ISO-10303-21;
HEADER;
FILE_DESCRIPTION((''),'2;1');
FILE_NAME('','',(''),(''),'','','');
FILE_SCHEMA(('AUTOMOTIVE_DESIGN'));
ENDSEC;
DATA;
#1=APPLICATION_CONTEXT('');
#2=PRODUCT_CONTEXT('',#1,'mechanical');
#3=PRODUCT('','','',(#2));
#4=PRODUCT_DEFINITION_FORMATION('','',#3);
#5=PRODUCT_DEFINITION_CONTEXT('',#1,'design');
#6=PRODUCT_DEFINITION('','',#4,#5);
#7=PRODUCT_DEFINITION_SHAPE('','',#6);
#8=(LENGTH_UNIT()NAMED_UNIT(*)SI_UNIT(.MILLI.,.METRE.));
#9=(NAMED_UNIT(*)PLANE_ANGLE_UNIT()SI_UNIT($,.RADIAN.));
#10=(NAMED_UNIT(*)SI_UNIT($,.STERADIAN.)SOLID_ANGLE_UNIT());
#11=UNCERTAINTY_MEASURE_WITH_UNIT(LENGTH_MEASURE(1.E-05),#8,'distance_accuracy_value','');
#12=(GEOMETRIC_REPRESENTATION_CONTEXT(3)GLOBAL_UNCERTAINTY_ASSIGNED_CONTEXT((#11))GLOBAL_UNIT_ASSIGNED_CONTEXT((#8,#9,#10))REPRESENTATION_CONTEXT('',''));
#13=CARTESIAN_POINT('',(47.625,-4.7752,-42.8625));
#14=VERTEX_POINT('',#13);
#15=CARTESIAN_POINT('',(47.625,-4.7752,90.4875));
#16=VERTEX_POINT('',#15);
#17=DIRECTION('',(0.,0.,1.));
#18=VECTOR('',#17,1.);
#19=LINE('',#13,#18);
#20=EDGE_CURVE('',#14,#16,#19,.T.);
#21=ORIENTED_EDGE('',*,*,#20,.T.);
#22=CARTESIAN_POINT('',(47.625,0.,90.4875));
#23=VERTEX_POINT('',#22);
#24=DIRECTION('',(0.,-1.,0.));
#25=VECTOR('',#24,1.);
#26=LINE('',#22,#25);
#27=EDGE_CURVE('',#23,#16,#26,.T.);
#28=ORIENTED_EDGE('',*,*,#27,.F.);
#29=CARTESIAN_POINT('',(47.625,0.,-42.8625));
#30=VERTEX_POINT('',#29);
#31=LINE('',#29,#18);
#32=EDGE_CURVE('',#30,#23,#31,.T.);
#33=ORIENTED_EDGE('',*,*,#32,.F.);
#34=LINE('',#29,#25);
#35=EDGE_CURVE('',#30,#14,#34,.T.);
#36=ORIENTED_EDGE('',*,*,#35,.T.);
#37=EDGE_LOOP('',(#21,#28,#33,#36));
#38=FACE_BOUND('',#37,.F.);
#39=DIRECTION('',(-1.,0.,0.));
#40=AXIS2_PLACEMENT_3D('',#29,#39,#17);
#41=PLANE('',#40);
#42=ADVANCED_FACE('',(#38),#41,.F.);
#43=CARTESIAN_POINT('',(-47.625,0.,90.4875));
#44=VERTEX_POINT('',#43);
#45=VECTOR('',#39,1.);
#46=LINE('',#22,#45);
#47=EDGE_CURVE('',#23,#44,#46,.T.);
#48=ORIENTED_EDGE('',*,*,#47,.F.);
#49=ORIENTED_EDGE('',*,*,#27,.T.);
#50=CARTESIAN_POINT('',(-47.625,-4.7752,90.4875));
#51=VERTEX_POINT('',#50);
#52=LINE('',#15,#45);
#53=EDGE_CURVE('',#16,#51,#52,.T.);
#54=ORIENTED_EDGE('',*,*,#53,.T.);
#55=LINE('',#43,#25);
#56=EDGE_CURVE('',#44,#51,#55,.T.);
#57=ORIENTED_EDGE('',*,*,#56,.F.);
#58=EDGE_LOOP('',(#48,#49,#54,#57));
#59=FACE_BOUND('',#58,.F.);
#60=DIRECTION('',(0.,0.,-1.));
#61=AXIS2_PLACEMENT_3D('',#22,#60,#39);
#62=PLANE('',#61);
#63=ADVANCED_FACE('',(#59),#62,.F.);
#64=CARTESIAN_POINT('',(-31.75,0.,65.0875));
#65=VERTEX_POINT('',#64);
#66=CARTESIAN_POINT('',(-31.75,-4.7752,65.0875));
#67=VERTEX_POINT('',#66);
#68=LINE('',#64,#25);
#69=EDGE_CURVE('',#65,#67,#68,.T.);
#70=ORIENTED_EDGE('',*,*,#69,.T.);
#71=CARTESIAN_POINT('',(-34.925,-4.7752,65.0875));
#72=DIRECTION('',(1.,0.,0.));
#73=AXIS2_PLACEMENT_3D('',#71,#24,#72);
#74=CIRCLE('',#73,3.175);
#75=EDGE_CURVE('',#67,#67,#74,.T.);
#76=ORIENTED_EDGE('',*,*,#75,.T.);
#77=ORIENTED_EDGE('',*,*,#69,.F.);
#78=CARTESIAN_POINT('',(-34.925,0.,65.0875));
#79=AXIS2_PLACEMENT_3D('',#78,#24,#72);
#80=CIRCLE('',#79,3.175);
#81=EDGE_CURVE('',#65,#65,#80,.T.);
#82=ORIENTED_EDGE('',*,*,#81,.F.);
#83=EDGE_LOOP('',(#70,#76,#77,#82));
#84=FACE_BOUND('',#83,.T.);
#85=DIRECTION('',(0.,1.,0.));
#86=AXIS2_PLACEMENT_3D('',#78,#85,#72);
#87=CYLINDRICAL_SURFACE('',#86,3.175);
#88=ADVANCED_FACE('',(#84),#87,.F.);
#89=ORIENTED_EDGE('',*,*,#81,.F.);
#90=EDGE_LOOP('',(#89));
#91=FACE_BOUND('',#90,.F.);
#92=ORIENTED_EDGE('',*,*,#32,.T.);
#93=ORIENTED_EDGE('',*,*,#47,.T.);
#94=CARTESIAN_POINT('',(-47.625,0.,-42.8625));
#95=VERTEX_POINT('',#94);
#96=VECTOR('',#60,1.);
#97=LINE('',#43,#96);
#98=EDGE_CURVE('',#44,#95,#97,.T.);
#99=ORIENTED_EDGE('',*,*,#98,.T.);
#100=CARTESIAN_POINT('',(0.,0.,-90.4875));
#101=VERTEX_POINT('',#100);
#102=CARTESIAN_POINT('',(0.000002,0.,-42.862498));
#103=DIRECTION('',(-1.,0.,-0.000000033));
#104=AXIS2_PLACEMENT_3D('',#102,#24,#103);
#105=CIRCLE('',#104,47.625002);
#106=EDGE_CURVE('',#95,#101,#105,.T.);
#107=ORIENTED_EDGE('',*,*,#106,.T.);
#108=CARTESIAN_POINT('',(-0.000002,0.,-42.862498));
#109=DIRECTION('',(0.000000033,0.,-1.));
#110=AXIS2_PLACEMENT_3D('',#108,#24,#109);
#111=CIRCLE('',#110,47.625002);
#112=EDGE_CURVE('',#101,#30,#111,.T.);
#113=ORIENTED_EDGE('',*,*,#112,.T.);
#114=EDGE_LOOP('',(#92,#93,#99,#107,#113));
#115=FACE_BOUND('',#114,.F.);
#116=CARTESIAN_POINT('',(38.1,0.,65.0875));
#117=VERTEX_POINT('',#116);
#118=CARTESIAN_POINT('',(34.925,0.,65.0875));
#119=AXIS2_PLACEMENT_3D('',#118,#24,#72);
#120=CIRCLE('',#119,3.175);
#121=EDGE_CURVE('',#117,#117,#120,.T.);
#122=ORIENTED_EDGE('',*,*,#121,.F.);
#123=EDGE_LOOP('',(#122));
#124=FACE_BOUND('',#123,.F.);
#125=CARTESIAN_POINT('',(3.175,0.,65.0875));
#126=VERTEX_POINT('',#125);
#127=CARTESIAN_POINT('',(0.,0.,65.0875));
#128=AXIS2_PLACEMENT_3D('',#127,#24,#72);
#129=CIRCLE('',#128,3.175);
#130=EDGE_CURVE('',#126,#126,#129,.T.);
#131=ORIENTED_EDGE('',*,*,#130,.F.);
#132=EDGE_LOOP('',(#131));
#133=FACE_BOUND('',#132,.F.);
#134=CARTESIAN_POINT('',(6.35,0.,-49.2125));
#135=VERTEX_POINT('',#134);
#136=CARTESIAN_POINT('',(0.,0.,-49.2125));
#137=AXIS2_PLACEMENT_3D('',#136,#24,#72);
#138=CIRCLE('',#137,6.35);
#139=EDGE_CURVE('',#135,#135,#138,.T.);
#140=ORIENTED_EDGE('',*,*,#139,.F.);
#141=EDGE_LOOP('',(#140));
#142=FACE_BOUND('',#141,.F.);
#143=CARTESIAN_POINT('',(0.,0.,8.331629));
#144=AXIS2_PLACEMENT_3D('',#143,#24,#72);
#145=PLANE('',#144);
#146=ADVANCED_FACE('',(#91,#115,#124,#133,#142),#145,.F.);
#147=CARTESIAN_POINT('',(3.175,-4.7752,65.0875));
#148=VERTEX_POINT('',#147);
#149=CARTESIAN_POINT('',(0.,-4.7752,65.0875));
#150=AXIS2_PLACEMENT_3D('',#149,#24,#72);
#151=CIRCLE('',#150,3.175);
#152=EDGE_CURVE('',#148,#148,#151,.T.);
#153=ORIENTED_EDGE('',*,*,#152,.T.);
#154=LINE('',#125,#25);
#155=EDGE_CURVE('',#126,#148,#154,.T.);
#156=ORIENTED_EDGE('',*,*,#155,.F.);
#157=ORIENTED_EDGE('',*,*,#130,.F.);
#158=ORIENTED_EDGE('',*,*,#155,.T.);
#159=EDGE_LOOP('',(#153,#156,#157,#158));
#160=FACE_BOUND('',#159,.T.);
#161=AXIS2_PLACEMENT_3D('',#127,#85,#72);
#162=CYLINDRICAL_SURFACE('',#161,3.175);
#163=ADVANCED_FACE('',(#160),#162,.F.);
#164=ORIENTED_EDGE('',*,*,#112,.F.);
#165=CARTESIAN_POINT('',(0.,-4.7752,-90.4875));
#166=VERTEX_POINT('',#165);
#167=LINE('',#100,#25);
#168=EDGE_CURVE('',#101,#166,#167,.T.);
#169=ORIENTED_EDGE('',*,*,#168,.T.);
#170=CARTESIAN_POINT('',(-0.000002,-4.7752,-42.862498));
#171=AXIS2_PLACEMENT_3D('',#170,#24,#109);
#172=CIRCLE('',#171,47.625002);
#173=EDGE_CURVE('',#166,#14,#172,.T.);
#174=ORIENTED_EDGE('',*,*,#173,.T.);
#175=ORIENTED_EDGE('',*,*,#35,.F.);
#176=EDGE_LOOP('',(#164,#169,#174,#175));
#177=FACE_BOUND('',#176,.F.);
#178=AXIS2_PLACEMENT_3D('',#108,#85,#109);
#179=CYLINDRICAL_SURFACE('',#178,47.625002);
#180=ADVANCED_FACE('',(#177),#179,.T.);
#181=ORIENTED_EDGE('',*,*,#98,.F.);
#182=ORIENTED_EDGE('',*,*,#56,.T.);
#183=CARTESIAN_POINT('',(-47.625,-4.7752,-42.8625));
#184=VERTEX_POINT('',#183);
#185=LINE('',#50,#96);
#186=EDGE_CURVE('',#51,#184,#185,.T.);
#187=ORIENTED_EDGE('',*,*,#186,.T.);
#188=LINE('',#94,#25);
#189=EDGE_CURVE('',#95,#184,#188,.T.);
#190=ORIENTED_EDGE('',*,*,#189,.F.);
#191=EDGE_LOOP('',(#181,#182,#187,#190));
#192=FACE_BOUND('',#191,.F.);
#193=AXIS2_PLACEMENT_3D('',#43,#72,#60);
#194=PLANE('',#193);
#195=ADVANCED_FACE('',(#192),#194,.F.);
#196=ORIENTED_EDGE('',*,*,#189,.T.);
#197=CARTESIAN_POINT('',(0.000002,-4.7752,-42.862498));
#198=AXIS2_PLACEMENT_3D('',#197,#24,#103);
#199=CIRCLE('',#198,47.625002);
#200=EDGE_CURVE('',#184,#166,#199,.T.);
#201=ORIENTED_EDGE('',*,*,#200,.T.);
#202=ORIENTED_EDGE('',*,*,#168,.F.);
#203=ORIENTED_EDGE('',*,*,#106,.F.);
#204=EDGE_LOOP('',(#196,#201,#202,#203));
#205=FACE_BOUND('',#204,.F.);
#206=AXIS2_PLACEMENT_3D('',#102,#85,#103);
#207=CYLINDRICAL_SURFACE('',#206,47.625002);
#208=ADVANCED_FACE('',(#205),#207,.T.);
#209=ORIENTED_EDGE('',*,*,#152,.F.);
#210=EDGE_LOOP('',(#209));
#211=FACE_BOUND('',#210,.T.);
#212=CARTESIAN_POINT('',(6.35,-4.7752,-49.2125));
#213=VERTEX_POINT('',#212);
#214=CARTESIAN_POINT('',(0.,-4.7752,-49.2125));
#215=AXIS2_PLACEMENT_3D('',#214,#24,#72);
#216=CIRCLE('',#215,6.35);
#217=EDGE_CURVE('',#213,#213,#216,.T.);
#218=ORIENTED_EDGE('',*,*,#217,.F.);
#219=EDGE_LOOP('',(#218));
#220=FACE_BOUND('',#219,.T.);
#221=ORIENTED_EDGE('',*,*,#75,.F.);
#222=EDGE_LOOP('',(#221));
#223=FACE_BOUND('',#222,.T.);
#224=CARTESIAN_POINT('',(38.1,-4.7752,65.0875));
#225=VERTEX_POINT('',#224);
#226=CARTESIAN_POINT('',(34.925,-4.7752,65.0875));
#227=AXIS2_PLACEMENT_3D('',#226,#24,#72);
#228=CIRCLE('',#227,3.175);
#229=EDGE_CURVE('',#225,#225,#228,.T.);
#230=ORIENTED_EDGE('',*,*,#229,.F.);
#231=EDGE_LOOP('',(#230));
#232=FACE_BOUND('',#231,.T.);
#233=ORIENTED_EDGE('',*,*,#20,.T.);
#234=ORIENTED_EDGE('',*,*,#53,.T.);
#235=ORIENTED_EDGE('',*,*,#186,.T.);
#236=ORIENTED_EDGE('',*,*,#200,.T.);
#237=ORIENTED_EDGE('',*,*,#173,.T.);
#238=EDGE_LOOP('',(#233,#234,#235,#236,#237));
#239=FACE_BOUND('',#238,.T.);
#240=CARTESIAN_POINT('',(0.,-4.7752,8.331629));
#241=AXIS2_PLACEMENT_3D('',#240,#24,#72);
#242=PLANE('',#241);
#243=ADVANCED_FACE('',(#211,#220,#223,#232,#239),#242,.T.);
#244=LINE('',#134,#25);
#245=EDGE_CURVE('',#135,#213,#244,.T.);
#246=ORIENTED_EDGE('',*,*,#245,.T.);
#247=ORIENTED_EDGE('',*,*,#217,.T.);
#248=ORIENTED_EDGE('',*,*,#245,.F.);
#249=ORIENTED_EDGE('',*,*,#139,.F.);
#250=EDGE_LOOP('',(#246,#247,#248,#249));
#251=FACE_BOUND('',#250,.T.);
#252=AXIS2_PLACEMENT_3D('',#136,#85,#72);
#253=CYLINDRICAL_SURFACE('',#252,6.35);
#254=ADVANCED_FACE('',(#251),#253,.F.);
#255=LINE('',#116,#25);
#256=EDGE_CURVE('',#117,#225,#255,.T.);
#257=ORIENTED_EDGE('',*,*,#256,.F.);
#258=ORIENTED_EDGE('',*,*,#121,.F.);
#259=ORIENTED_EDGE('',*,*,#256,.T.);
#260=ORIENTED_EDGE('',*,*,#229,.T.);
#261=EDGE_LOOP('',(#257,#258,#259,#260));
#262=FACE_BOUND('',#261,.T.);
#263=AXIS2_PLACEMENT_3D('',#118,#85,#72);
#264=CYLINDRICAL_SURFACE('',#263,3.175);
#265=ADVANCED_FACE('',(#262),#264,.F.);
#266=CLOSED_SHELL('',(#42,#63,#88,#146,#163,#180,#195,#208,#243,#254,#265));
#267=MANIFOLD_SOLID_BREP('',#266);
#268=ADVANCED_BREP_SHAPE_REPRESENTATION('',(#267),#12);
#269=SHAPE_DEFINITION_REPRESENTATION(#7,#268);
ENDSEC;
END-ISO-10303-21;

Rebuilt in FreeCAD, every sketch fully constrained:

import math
import FreeCAD as App
import Part
import Sketcher

V = App.Vector
Q = App.Units.Quantity

doc = App.newDocument("Part")
params = doc.addObject("Spreadsheet::Sheet", "Params")
for row, (alias, value) in enumerate([
    ("sketch1_diameter", "0.5 in"),
    ("sketch1_diameter2", "0.25 in"),
    ("sketch1_radius", "1.8750001 in"),
    ("sketch1_height", "5.25 in"),
    ("pad1_length", "0.188 in"),
], start=1):
    params.set(f"A{row}", alias)
    params.set(f"B{row}", "=" + value)
    params.setAlias(f"B{row}", alias)

body = doc.addObject("PartDesign::Body", "Body")

# Sketch on XZ plane
sketch1 = body.newObject("Sketcher::SketchObject", "Sketch")
sketch1.AttachmentSupport = (doc.getObject("XZ_Plane"), [""])
sketch1.MapMode = "FlatFace"
sketch1.addGeometry([
    Part.LineSegment(V(47.6, 90.5, 0), V(-47.6, 90.5, 0)),  # 0
    Part.LineSegment(V(-47.6, 90.5, 0), V(-47.6, -42.9, 0)),  # 1
    Part.ArcOfCircle(Part.Circle(V(0, -42.9, 0), V(0, 0, 1), 47.6), math.radians(-180), math.radians(-90)),  # 2
    Part.ArcOfCircle(Part.Circle(V(0, -42.9, 0), V(0, 0, 1), 47.6), math.radians(-90), math.radians(0)),  # 3
    Part.LineSegment(V(47.6, -42.9, 0), V(47.6, 90.5, 0)),  # 4
    Part.Circle(V(0, -49.2, 0), V(0, 0, 1), 6.3),  # 5
    Part.Circle(V(-34.9, 65.1, 0), V(0, 0, 1), 3.2),  # 6
    Part.Circle(V(0, 65.1, 0), V(0, 0, 1), 3.2),  # 7
    Part.Circle(V(34.9, 65.1, 0), V(0, 0, 1), 3.2),  # 8
], False)
sketch1.addConstraint([
    Sketcher.Constraint("Coincident", 0, 2, 1, 1),
    Sketcher.Constraint("Tangent", 1, 2, 2, 1),
    Sketcher.Constraint("Tangent", 2, 2, 3, 1),
    Sketcher.Constraint("Tangent", 3, 2, 4, 1),
    Sketcher.Constraint("Coincident", 4, 2, 0, 1),
    Sketcher.Constraint("Horizontal", 0),
    Sketcher.Constraint("Vertical", 1),
    Sketcher.Constraint("Vertical", 4),
    Sketcher.Constraint("Equal", 2, 3),
    Sketcher.Constraint("Equal", 6, 7),
    Sketcher.Constraint("Equal", 7, 8),
    Sketcher.Constraint("Symmetric", 6, 3, 8, 3, -2),
    Sketcher.Constraint("PointOnObject", 2, 3, -2),
    Sketcher.Constraint("PointOnObject", 5, 3, -2),
    Sketcher.Constraint("PointOnObject", 7, 3, -2),
    Sketcher.Constraint("PointOnObject", 2, 2, -2),
    Sketcher.Constraint("Horizontal", 6, 3, 7, 3),
    Sketcher.Constraint("Diameter", 5, Q("0.5 in")),
    Sketcher.Constraint("Diameter", 6, Q("0.25 in")),
    Sketcher.Constraint("Radius", 2, Q("1.8750001 in")),
    Sketcher.Constraint("DistanceY", 6, 3, 0, 2, Q("1 in")),
    Sketcher.Constraint("DistanceY", 1, 2, 1, 1, Q("5.25 in")),
    Sketcher.Constraint("DistanceY", 5, 3, 6, 3, Q("4.5 in")),
    Sketcher.Constraint("DistanceX", 0, 2, 6, 3, Q("0.5 in")),
    Sketcher.Constraint("DistanceY", 2, 3, -1, 1, Q("1.6874999 in")),
])
sketch1.setExpression("Constraints[17]", "Params.sketch1_diameter")
sketch1.setExpression("Constraints[18]", "Params.sketch1_diameter2")
sketch1.setExpression("Constraints[19]", "Params.sketch1_radius")
sketch1.setExpression("Constraints[21]", "Params.sketch1_height")
pad1 = body.newObject("PartDesign::Pad", "Pad")
pad1.Profile = sketch1
pad1.setExpression("Length", "Params.pad1_length")

doc.recompute()
